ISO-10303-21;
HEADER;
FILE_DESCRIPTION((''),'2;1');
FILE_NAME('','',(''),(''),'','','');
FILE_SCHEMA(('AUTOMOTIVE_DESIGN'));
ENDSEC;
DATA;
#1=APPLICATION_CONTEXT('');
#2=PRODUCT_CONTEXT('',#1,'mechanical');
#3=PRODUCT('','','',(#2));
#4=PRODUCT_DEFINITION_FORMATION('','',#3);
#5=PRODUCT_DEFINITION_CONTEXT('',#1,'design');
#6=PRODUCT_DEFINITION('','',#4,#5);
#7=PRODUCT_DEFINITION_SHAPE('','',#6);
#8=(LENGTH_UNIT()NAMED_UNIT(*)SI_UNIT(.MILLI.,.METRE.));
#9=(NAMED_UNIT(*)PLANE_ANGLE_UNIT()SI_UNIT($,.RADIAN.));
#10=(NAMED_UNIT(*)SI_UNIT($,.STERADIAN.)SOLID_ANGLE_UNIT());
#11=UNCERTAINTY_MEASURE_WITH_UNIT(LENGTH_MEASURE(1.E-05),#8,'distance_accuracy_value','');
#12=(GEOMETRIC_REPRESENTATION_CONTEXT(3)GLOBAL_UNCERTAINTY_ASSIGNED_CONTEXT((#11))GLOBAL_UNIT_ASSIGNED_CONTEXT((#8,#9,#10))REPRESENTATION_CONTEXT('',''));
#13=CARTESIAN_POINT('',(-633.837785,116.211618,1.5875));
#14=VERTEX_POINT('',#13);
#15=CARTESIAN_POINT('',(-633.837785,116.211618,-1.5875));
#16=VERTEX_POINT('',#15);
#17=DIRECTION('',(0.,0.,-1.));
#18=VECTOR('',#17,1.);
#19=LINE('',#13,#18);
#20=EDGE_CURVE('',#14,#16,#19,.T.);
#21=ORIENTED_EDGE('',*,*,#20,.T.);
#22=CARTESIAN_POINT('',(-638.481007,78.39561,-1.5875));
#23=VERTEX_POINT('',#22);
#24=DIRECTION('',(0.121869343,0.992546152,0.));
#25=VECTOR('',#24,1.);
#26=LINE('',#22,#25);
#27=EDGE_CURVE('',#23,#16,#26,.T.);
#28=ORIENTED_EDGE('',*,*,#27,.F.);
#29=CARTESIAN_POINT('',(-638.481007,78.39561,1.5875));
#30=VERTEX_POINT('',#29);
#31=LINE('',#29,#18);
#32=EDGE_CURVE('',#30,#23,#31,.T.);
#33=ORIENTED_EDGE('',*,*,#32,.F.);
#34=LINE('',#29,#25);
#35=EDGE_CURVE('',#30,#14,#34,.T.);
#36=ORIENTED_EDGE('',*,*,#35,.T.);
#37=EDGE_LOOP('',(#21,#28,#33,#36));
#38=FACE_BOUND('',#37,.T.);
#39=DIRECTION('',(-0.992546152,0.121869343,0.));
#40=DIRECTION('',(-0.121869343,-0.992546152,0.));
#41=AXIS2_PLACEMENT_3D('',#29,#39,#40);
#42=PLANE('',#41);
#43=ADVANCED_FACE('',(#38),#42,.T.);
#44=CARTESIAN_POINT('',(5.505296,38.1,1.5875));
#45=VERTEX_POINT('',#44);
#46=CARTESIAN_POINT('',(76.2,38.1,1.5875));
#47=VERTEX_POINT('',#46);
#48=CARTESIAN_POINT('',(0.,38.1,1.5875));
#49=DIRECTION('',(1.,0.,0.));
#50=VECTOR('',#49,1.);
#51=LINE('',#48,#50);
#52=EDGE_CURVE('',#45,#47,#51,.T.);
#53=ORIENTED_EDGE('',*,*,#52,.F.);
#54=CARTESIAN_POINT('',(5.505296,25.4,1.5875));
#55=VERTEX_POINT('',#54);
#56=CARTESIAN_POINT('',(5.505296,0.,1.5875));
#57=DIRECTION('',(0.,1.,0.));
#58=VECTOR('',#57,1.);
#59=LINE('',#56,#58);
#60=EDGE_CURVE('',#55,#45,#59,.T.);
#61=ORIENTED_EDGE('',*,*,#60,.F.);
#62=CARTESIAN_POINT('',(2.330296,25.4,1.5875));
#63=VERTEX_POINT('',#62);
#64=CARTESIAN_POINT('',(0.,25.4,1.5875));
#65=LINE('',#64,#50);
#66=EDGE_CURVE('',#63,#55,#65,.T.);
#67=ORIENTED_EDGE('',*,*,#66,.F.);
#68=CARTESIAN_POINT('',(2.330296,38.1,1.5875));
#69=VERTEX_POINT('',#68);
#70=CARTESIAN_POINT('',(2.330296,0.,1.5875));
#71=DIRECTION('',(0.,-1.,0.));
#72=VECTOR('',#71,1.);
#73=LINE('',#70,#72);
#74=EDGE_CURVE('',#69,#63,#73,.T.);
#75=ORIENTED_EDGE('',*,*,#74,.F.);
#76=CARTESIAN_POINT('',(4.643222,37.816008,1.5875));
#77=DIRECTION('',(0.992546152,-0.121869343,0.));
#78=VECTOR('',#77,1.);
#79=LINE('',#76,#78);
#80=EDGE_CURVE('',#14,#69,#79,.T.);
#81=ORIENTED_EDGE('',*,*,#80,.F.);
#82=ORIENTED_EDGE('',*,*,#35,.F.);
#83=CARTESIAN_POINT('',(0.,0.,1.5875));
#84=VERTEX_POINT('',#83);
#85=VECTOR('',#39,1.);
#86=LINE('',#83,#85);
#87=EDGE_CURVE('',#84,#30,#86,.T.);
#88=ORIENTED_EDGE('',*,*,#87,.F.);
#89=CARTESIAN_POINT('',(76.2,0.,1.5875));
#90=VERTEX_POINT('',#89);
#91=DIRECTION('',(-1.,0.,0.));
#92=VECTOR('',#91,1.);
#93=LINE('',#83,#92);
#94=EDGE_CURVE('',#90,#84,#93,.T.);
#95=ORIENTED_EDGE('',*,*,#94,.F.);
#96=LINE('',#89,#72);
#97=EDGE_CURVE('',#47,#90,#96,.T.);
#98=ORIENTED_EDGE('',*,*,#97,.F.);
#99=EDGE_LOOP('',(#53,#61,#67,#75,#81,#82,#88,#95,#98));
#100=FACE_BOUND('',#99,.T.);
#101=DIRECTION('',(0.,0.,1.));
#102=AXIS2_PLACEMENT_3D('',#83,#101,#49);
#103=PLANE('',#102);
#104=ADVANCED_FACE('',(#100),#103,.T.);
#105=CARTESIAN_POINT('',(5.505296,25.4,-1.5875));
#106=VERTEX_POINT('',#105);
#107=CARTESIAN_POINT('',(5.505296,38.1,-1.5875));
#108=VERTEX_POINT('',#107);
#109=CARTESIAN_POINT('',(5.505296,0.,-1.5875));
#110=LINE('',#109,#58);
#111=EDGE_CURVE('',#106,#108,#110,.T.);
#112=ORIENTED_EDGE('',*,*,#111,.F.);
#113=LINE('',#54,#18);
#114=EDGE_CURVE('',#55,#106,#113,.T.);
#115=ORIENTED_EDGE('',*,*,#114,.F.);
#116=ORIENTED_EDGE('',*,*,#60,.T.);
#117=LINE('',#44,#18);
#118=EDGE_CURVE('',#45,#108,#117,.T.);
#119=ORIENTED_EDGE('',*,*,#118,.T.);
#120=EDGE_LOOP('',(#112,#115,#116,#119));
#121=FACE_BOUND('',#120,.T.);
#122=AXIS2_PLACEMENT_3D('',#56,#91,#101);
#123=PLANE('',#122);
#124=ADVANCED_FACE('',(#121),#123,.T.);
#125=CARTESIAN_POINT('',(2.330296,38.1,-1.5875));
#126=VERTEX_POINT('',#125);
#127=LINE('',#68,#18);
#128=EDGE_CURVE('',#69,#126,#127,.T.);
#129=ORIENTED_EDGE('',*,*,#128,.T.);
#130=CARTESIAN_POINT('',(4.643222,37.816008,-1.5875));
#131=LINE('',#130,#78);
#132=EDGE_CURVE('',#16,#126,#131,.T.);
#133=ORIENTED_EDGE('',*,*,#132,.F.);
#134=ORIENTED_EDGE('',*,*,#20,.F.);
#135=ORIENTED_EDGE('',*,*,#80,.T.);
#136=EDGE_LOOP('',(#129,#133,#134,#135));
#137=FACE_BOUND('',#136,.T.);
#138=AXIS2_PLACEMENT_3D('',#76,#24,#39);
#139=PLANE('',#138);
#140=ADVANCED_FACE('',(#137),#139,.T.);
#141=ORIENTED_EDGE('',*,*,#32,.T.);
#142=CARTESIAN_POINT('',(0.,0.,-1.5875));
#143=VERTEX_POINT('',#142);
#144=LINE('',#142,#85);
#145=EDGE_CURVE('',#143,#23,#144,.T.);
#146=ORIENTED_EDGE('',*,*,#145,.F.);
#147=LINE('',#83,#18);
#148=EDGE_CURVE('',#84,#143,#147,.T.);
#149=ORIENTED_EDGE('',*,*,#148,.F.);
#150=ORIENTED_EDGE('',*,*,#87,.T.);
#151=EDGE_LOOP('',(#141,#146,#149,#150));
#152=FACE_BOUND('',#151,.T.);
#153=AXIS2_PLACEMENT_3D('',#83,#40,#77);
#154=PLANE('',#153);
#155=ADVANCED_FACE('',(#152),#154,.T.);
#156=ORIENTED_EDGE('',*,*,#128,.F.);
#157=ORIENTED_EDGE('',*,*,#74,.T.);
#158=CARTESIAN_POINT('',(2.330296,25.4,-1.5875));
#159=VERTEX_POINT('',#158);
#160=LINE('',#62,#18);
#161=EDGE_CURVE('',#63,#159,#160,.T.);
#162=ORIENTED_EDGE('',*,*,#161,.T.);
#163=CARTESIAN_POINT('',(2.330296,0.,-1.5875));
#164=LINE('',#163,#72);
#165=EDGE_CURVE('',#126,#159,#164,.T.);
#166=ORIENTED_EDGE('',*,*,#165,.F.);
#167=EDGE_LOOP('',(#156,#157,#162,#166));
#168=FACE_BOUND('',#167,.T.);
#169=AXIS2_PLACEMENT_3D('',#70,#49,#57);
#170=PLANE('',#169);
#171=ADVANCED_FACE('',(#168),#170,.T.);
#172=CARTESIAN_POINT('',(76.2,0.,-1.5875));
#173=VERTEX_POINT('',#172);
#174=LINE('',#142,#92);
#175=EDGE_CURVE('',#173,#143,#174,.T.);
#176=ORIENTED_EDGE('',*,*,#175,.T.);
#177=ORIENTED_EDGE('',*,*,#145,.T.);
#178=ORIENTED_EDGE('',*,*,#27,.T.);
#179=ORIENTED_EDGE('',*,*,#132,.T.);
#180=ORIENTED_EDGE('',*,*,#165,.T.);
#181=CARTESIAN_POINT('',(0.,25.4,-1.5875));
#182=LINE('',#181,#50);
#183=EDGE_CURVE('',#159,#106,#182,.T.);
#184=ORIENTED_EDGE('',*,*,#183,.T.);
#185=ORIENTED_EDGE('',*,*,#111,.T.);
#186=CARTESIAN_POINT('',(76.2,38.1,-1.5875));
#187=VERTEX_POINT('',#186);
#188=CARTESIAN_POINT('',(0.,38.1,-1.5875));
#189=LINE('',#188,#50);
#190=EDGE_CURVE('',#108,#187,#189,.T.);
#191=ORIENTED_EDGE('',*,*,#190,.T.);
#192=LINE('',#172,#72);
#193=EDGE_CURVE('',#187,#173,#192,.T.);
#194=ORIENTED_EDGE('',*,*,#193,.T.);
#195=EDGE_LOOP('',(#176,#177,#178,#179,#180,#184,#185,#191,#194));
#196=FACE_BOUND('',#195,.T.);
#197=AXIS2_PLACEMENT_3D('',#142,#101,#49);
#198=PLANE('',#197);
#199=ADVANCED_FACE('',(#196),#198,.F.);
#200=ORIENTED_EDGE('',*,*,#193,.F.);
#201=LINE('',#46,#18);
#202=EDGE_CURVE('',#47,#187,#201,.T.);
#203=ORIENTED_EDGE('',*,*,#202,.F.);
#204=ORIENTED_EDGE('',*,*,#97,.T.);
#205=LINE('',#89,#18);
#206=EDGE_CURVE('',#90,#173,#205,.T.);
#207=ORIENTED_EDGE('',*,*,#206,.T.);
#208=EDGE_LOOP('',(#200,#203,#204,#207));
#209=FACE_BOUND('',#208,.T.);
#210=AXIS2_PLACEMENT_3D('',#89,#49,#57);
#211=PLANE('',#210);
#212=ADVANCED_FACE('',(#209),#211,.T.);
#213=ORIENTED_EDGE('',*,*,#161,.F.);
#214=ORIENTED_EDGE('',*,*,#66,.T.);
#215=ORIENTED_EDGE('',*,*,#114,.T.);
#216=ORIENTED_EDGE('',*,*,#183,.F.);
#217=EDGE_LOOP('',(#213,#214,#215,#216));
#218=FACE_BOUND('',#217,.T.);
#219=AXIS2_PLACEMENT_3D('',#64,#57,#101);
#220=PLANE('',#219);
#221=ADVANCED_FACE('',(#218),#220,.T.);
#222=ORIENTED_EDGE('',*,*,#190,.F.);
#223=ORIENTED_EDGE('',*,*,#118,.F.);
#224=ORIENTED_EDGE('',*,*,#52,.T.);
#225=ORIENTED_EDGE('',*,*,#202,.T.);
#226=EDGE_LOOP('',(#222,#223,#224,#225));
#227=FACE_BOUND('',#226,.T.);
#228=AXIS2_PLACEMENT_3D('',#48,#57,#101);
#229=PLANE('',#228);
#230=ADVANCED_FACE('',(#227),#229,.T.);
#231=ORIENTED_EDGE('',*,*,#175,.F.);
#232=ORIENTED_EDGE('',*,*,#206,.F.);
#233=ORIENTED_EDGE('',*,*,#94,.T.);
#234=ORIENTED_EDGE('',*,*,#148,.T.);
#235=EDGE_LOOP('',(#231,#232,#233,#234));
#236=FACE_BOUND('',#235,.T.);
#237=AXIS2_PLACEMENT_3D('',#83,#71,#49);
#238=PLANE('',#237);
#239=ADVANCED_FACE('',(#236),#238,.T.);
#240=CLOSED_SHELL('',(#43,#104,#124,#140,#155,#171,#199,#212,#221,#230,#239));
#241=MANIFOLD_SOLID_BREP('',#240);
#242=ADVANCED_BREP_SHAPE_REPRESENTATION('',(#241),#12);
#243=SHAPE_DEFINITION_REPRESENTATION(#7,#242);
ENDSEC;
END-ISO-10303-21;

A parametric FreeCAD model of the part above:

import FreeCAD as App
import Part
import Sketcher
from FreeCAD import Vector
Q = App.Units.Quantity

doc = App.newDocument("Part")
params = doc.addObject("Spreadsheet::Sheet", "Params")
for row, (alias, value) in enumerate([
    ("sketch1_width", "3 in"),
    ("sketch1_height", "1.5 in"),
    ("sketch1_height2", "0.5 in"),
    ("sketch1_length", "1.5 in"),
    ("sketch1_width2", "0.125 in"),
    ("pad1_length", "0.125 in"),
], start=1):
    params.set(f"A{row}", alias)
    params.set(f"B{row}", "=" + value)
    params.setAlias(f"B{row}", alias)

body = doc.addObject("PartDesign::Body", "Body")

sketch1 = doc.addObject("Sketcher::SketchObject", "Sketch")
body.addObject(sketch1)
sketch1.AttachmentSupport = (doc.XY_Plane, [""])
sketch1.MapMode = "FlatFace"
sketch1.addGeometry([
    Part.LineSegment(Vector(-638.5, 78.4, 0), Vector(0, 0, 0)),
    Part.LineSegment(Vector(0, 0, 0), Vector(76.2, 0, 0)),
    Part.LineSegment(Vector(76.2, 0, 0), Vector(76.2, 38.1, 0)),
    Part.LineSegment(Vector(76.2, 38.1, 0), Vector(5.5, 38.1, 0)),
    Part.LineSegment(Vector(5.5, 38.1, 0), Vector(5.5, 25.4, 0)),
    Part.LineSegment(Vector(5.5, 25.4, 0), Vector(2.3, 25.4, 0)),
    Part.LineSegment(Vector(2.3, 25.4, 0), Vector(2.3, 38.1, 0)),
    Part.LineSegment(Vector(2.3, 38.1, 0), Vector(-633.8, 116.2, 0)),
    Part.LineSegment(Vector(-633.8, 116.2, 0), Vector(-638.5, 78.4, 0)),
], False)
sketch1.addConstraint([
    Sketcher.Constraint("Coincident", 0, 2, 1, 1),
    Sketcher.Constraint("Coincident", 1, 2, 2, 1),
    Sketcher.Constraint("Coincident", 2, 2, 3, 1),
    Sketcher.Constraint("Coincident", 3, 2, 4, 1),
    Sketcher.Constraint("Coincident", 4, 2, 5, 1),
    Sketcher.Constraint("Coincident", 5, 2, 6, 1),
    Sketcher.Constraint("Coincident", 6, 2, 7, 1),
    Sketcher.Constraint("Coincident", 7, 2, 8, 1),
    Sketcher.Constraint("Coincident", 8, 2, 0, 1),
    Sketcher.Constraint("Horizontal", 1),
    Sketcher.Constraint("Vertical", 2),
    Sketcher.Constraint("Horizontal", 3),
    Sketcher.Constraint("Vertical", 4),
    Sketcher.Constraint("Horizontal", 5),
    Sketcher.Constraint("Vertical", 6),
    Sketcher.Constraint("Coincident", 0, 2, -1, 1),
    Sketcher.Constraint("Parallel", 0, 7),
    Sketcher.Constraint("Perpendicular", 7, 8),
    Sketcher.Constraint("Horizontal", 3, 2, 6, 2),
    Sketcher.Constraint("DistanceX", 1, 1, 1, 2, Q("3 in")),
    Sketcher.Constraint("DistanceY", 2, 1, 2, 2, Q("1.5 in")),
    Sketcher.Constraint("DistanceY", 4, 2, 4, 1, Q("0.5 in")),
    Sketcher.Constraint("Angle", 0, Q("-7 deg")),
    Sketcher.Constraint("Distance", 8, Q("1.5 in")),
    Sketcher.Constraint("DistanceX", 5, 2, 5, 1, Q("0.125 in")),
    Sketcher.Constraint("DistanceY", -1, 1, 7, 2, 116.211618),
])
sketch1.setExpression("Constraints[19]", "Params.sketch1_width")
sketch1.setExpression("Constraints[20]", "Params.sketch1_height")
sketch1.setExpression("Constraints[21]", "Params.sketch1_height2")
sketch1.setExpression("Constraints[23]", "Params.sketch1_length")
sketch1.setExpression("Constraints[24]", "Params.sketch1_width2")
pad1 = doc.addObject("PartDesign::Pad", "Pad")
body.addObject(pad1)
pad1.Profile = sketch1
pad1.setExpression("Length", "Params.pad1_length")
pad1.Midplane = True

doc.recompute()
